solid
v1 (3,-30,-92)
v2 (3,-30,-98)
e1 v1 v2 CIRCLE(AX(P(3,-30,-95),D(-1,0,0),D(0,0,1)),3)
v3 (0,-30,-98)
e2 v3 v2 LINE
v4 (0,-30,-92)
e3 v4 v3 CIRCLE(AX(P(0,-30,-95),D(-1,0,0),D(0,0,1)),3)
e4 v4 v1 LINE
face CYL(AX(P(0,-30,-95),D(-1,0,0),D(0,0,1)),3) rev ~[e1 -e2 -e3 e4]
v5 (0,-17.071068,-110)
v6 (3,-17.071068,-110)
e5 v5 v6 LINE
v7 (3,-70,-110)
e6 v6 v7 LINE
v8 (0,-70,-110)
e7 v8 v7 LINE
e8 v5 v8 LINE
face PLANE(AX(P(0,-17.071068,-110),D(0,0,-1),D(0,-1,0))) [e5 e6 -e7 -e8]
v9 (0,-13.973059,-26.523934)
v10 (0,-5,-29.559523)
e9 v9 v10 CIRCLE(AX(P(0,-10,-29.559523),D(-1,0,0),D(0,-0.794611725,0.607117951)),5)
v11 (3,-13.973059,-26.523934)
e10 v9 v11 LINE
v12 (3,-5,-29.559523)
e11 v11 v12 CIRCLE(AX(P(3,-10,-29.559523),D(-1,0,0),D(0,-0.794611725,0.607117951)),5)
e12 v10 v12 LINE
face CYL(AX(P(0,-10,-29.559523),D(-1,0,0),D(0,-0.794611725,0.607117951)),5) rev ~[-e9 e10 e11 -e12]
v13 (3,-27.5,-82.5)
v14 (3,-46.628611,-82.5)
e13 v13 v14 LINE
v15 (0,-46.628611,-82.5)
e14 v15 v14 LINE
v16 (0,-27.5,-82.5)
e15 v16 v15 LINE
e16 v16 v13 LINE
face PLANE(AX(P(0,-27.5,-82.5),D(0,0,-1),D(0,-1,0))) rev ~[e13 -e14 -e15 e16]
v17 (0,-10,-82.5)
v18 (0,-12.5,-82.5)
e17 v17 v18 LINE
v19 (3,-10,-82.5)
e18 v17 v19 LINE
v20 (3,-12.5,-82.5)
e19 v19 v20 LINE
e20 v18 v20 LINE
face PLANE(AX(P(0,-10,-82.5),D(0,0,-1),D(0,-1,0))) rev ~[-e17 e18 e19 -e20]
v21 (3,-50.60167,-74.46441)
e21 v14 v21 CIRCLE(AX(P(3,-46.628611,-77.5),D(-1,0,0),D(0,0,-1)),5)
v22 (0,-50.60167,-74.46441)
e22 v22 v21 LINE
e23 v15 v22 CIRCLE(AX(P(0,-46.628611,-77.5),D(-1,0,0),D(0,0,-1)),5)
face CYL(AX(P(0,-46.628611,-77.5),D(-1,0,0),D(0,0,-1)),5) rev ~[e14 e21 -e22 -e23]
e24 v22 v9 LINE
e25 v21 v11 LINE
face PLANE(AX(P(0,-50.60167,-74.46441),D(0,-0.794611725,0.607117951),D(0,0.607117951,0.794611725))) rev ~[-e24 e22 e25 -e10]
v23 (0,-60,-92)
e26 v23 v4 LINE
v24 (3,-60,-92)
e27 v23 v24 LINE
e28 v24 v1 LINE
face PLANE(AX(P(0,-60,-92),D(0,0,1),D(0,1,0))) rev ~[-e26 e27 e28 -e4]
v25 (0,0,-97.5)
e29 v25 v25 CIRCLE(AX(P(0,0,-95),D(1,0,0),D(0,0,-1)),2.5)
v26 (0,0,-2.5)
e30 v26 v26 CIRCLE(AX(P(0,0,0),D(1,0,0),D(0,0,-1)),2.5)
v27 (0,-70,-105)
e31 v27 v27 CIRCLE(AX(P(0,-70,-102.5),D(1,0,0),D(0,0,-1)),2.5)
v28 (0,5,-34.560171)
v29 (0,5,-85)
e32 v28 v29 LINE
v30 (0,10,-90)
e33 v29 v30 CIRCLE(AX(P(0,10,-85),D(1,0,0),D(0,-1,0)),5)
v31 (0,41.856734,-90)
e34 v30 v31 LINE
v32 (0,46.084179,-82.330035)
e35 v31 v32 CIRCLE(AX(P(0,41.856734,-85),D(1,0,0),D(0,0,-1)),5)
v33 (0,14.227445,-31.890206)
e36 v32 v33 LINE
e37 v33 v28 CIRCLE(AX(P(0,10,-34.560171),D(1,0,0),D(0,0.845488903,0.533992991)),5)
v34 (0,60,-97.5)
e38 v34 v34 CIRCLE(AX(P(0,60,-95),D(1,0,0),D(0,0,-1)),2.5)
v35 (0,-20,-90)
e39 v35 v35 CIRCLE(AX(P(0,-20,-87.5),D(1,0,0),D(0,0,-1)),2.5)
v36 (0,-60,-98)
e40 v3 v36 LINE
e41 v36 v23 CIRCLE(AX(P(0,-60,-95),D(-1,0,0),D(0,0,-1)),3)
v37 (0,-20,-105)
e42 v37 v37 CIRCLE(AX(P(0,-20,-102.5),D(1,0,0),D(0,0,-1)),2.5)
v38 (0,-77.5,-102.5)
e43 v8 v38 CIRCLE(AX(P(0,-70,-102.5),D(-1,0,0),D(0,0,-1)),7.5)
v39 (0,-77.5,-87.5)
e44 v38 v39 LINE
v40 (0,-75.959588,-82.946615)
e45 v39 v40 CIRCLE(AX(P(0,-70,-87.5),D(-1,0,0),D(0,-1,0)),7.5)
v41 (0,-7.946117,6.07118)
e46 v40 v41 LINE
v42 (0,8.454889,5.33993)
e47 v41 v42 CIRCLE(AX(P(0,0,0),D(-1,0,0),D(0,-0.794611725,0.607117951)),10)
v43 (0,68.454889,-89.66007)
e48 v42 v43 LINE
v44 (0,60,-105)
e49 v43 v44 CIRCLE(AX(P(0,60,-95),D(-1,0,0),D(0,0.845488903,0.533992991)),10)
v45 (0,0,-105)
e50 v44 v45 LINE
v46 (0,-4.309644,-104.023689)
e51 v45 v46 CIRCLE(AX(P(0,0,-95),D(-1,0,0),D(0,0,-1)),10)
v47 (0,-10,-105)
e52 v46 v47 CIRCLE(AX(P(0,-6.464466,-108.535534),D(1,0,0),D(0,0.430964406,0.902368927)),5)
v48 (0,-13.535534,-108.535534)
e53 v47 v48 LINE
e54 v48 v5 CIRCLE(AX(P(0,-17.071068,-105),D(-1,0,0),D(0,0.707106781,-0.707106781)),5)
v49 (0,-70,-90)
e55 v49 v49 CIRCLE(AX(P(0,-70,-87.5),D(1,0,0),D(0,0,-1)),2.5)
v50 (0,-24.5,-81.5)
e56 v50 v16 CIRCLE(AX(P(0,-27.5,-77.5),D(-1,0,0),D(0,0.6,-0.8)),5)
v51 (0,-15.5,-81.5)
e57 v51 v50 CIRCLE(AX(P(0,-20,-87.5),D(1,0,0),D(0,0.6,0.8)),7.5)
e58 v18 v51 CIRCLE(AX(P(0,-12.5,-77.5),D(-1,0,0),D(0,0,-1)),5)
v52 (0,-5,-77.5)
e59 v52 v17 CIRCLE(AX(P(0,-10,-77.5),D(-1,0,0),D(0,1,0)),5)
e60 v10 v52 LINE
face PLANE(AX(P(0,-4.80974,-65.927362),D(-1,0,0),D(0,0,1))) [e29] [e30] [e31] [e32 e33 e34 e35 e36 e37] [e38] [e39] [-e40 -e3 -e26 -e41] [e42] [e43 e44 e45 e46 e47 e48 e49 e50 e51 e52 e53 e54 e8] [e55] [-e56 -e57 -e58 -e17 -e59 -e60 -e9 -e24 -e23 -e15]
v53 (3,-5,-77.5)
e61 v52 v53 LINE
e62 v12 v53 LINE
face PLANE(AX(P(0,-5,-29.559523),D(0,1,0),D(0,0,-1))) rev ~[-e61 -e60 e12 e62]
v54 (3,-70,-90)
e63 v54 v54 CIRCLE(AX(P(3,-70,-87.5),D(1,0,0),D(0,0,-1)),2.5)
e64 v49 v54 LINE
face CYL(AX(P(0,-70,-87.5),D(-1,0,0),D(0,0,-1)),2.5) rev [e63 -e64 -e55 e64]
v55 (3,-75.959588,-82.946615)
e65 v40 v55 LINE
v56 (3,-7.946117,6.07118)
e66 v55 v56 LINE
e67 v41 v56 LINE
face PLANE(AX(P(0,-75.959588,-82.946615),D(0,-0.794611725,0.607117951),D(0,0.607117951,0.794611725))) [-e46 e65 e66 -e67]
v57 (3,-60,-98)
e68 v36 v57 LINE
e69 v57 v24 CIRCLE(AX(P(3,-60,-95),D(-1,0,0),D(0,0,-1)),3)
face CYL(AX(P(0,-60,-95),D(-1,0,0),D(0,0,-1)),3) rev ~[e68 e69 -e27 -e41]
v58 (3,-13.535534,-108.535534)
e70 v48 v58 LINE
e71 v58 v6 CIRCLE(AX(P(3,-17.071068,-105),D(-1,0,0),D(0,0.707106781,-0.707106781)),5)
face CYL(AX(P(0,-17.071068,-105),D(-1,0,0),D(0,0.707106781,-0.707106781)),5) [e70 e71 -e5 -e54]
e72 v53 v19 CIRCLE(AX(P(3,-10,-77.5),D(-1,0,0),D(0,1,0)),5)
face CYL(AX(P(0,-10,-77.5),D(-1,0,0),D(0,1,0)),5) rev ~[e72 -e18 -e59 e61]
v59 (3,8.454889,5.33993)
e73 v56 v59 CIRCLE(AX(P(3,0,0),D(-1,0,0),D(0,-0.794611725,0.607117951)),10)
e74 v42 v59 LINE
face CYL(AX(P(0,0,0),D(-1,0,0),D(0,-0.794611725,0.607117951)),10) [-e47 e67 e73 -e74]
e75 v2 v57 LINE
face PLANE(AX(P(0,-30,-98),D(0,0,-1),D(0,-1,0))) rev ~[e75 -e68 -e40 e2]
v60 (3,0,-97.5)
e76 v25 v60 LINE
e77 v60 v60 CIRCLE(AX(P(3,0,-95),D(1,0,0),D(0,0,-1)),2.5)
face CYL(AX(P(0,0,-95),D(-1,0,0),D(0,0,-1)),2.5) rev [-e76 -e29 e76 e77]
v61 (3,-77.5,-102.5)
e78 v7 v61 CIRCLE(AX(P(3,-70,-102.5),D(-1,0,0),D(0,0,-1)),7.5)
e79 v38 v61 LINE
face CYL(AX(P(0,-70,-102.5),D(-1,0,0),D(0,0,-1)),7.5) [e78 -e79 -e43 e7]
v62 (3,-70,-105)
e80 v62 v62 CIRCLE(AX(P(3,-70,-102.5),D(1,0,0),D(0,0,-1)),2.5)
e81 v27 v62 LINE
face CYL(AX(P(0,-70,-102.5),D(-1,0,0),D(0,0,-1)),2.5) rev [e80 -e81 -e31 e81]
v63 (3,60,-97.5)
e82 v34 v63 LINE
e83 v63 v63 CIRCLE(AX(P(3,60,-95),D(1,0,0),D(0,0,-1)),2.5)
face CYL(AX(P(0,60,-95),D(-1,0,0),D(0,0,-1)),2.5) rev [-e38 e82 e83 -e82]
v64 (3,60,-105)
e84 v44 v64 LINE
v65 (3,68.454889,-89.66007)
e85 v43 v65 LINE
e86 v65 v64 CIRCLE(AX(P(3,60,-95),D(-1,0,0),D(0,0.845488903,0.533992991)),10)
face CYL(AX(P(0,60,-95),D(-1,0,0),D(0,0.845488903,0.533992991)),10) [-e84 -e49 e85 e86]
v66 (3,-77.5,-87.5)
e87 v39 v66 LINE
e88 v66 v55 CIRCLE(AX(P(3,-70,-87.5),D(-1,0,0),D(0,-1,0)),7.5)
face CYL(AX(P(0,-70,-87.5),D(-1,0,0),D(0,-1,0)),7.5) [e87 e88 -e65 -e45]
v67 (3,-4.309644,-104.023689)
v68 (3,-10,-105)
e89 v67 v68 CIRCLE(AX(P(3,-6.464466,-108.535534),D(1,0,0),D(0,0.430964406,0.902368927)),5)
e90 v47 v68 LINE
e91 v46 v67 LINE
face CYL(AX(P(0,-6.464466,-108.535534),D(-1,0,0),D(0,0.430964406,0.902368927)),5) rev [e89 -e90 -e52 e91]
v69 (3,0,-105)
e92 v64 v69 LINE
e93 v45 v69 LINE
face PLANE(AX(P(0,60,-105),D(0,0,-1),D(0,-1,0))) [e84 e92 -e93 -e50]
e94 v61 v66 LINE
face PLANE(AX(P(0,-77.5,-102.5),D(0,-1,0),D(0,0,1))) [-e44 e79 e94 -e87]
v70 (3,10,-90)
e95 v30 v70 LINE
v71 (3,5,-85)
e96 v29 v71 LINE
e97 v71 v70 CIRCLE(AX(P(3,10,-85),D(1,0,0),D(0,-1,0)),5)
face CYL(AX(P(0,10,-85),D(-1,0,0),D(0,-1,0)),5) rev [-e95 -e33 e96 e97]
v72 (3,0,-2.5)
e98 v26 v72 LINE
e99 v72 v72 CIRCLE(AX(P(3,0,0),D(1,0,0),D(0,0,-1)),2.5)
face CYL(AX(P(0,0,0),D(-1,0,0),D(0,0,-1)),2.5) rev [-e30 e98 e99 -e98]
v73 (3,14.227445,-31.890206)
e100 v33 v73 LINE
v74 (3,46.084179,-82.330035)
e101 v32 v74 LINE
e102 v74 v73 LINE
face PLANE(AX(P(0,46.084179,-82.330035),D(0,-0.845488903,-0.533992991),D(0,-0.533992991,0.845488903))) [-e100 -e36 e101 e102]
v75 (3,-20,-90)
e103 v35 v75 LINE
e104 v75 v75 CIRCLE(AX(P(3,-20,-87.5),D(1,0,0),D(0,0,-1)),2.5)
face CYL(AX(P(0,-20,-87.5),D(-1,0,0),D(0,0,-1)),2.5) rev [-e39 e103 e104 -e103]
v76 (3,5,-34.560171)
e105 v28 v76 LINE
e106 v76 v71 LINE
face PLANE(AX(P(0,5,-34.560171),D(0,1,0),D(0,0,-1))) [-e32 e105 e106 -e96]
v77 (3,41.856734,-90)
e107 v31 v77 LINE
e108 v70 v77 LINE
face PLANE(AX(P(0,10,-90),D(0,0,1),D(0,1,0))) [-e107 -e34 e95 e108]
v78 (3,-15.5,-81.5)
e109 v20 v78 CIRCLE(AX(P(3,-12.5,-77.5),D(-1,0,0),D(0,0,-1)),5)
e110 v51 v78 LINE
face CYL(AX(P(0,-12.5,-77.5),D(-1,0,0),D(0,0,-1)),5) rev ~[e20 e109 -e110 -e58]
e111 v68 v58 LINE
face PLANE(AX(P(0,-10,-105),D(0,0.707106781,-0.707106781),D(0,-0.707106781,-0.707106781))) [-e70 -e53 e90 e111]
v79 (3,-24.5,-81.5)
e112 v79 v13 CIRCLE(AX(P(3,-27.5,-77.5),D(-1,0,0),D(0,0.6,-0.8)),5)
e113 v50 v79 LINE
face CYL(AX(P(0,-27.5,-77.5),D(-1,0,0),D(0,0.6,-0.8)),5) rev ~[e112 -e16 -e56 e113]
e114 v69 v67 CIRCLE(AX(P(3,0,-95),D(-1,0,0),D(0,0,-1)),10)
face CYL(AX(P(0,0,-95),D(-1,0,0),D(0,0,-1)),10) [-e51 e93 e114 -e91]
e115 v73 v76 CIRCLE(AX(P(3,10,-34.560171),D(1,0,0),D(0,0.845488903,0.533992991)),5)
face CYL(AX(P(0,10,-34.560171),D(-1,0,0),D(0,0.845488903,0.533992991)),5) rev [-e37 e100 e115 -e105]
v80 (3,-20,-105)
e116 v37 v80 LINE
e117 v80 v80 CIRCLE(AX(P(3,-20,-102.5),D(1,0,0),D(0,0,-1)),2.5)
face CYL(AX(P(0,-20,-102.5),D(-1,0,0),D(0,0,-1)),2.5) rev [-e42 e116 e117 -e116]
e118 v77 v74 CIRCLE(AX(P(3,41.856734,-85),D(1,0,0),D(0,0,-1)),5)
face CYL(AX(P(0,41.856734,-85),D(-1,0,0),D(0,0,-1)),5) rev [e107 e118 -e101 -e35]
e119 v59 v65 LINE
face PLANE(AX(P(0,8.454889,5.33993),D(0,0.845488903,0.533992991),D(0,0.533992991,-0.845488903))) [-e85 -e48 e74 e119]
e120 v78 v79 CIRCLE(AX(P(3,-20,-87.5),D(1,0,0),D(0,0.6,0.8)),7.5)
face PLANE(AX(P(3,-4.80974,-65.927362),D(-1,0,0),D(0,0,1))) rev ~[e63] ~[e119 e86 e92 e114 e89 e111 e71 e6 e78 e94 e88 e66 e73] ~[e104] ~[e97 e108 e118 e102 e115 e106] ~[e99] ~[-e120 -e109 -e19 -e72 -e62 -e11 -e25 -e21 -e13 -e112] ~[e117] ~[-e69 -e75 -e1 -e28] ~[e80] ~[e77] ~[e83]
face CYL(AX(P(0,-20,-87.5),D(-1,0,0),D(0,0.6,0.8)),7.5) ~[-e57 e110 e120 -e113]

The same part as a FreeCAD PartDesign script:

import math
import FreeCAD as App
import Part
import Sketcher

V = App.Vector
Q = App.Units.Quantity

doc = App.newDocument("Part")
body = doc.addObject("PartDesign::Body", "Body")

# Sketch on YZ plane
sketch1 = doc.addObject("Sketcher::SketchObject", "Sketch")
body.addObject(sketch1)
sketch1.AttachmentSupport = (doc.YZ_Plane, [""])
sketch1.MapMode = "FlatFace"
sketch1.addGeometry(Part.LineSegment(V(68.454889, -89.66007, 0), V(8.454889, 5.33993, 0)), False)
sketch1.addGeometry(Part.ArcOfCircle(Part.Circle(V(0, 0, 0), V(0, 0, 1), 10), math.radians(32.275644), math.radians(142.618597)), False)
sketch1.addGeometry(Part.LineSegment(V(-7.946117, 6.07118, 0), V(-75.959588, -82.946615, 0)), False)
sketch1.addGeometry(Part.ArcOfCircle(Part.Circle(V(-70, -87.5, 0), V(0, 0, 1), 7.5), math.radians(142.618597), math.radians(180)), False)
sketch1.addGeometry(Part.LineSegment(V(-77.5, -87.5, 0), V(-77.5, -102.5, 0)), False)
sketch1.addGeometry(Part.ArcOfCircle(Part.Circle(V(-70, -102.5, 0), V(0, 0, 1), 7.5), math.radians(180), math.radians(270)), False)
sketch1.addGeometry(Part.LineSegment(V(-70, -110, 0), V(-17.071068, -110, 0)), False)
sketch1.addGeometry(Part.ArcOfCircle(Part.Circle(V(-17.071068, -105, 0), V(0, 0, 1), 5), math.radians(-90), math.radians(-45)), False)
sketch1.addGeometry(Part.LineSegment(V(-13.535534, -108.535534, 0), V(-10, -105, 0)), False)
sketch1.addGeometry(Part.ArcOfCircle(Part.Circle(V(-6.464466, -108.535534, 0), V(0, 0, 1), 5), math.radians(64.471221), math.radians(135)), False)
sketch1.addGeometry(Part.ArcOfCircle(Part.Circle(V(0, -95, 0), V(0, 0, 1), 10), math.radians(-115.528779), math.radians(-90)), False)
sketch1.addGeometry(Part.LineSegment(V(0, -105, 0), V(60, -105, 0)), False)
sketch1.addGeometry(Part.ArcOfCircle(Part.Circle(V(60, -95, 0), V(0, 0, 1), 10), math.radians(-90), math.radians(32.275644)), False)
sketch1.addGeometry(Part.Circle(V(-70, -102.5, 0), V(0, 0, 1), 2.5), False)
sketch1.addGeometry(Part.Circle(V(-70, -87.5, 0), V(0, 0, 1), 2.5), False)
sketch1.addGeometry(Part.LineSegment(V(-30, -98, 0), V(-60, -98, 0)), False)
sketch1.addGeometry(Part.ArcOfCircle(Part.Circle(V(-60, -95, 0), V(0, 0, 1), 3), math.radians(90), math.radians(270)), False)
sketch1.addGeometry(Part.LineSegment(V(-60, -92, 0), V(-30, -92, 0)), False)
sketch1.addGeometry(Part.ArcOfCircle(Part.Circle(V(-30, -95, 0), V(0, 0, 1), 3), math.radians(-90), math.radians(90)), False)
sketch1.addGeometry(Part.Circle(V(-20, -102.5, 0), V(0, 0, 1), 2.5), False)
sketch1.addGeometry(Part.Circle(V(-20, -87.5, 0), V(0, 0, 1), 2.5), False)
sketch1.addGeometry(Part.LineSegment(V(-5, -29.559523, 0), V(-5, -77.5, 0)), False)
sketch1.addGeometry(Part.ArcOfCircle(Part.Circle(V(-10, -77.5, 0), V(0, 0, 1), 5), math.radians(-90), math.radians(0)), False)
sketch1.addGeometry(Part.LineSegment(V(-10, -82.5, 0), V(-12.5, -82.5, 0)), False)
sketch1.addGeometry(Part.ArcOfCircle(Part.Circle(V(-12.5, -77.5, 0), V(0, 0, 1), 5), math.radians(-126.869898), math.radians(-90)), False)
sketch1.addGeometry(Part.ArcOfCircle(Part.Circle(V(-20, -87.5, 0), V(0, 0, 1), 7.5), math.radians(53.130102), math.radians(126.869898)), False)
sketch1.addGeometry(Part.ArcOfCircle(Part.Circle(V(-27.5, -77.5, 0), V(0, 0, 1), 5), math.radians(-90), math.radians(-53.130102)), False)
sketch1.addGeometry(Part.LineSegment(V(-27.5, -82.5, 0), V(-46.628611, -82.5, 0)), False)
sketch1.addGeometry(Part.ArcOfCircle(Part.Circle(V(-46.628611, -77.5, 0), V(0, 0, 1), 5), math.radians(142.618597), math.radians(270)), False)
sketch1.addGeometry(Part.LineSegment(V(-50.60167, -74.46441, 0), V(-13.973059, -26.523934, 0)), False)
sketch1.addGeometry(Part.ArcOfCircle(Part.Circle(V(-10, -29.559523, 0), V(0, 0, 1), 5), math.radians(0), math.radians(142.618597)), False)
sketch1.addGeometry(Part.Circle(V(0, -95, 0), V(0, 0, 1), 2.5), False)
sketch1.addGeometry(Part.ArcOfCircle(Part.Circle(V(41.856734, -85, 0), V(0, 0, 1), 5), math.radians(-90), math.radians(32.275644)), False)
sketch1.addGeometry(Part.LineSegment(V(41.856734, -90, 0), V(10, -90, 0)), False)
sketch1.addGeometry(Part.ArcOfCircle(Part.Circle(V(10, -85, 0), V(0, 0, 1), 5), math.radians(180), math.radians(270)), False)
sketch1.addGeometry(Part.LineSegment(V(5, -85, 0), V(5, -34.560171, 0)), False)
sketch1.addGeometry(Part.ArcOfCircle(Part.Circle(V(10, -34.560171, 0), V(0, 0, 1), 5), math.radians(32.275644), math.radians(180)), False)
sketch1.addGeometry(Part.LineSegment(V(14.227445, -31.890206, 0), V(46.084179, -82.330035, 0)), False)
sketch1.addGeometry(Part.Circle(V(60, -95, 0), V(0, 0, 1), 2.5), False)
sketch1.addGeometry(Part.Circle(V(0, 0, 0), V(0, 0, 1), 2.5), False)
sketch1.addConstraint(Sketcher.Constraint("Tangent", 0, 2, 1, 1))
sketch1.addConstraint(Sketcher.Constraint("Tangent", 1, 2, 2, 1))
sketch1.addConstraint(Sketcher.Constraint("Tangent", 2, 2, 3, 1))
sketch1.addConstraint(Sketcher.Constraint("Tangent", 3, 2, 4, 1))
sketch1.addConstraint(Sketcher.Constraint("Tangent", 4, 2, 5, 1))
sketch1.addConstraint(Sketcher.Constraint("Tangent", 5, 2, 6, 1))
sketch1.addConstraint(Sketcher.Constraint("Tangent", 6, 2, 7, 1))
sketch1.addConstraint(Sketcher.Constraint("Tangent", 7, 2, 8, 1))
sketch1.addConstraint(Sketcher.Constraint("Tangent", 8, 2, 9, 2))
sketch1.addConstraint(Sketcher.Constraint("Tangent", 9, 1, 10, 1))
sketch1.addConstraint(Sketcher.Constraint("Tangent", 10, 2, 11, 1))
sketch1.addConstraint(Sketcher.Constraint("Tangent", 11, 2, 12, 1))
sketch1.addConstraint(Sketcher.Constraint("Tangent", 12, 2, 0, 1))
sketch1.addConstraint(Sketcher.Constraint("Tangent", 15, 2, 16, 2))
sketch1.addConstraint(Sketcher.Constraint("Tangent", 16, 1, 17, 1))
sketch1.addConstraint(Sketcher.Constraint("Tangent", 17, 2, 18, 2))
sketch1.addConstraint(Sketcher.Constraint("Tangent", 18, 1, 15, 1))
sketch1.addConstraint(Sketcher.Constraint("Tangent", 21, 2, 22, 2))
sketch1.addConstraint(Sketcher.Constraint("Tangent", 22, 1, 23, 1))
sketch1.addConstraint(Sketcher.Constraint("Tangent", 23, 2, 24, 2))
sketch1.addConstraint(Sketcher.Constraint("Tangent", 24, 1, 25, 1))
sketch1.addConstraint(Sketcher.Constraint("Tangent", 25, 2, 26, 2))
sketch1.addConstraint(Sketcher.Constraint("Tangent", 26, 1, 27, 1))
sketch1.addConstraint(Sketcher.Constraint("Tangent", 27, 2, 28, 2))
sketch1.addConstraint(Sketcher.Constraint("Tangent", 28, 1, 29, 1))
sketch1.addConstraint(Sketcher.Constraint("Tangent", 29, 2, 30, 2))
sketch1.addConstraint(Sketcher.Constraint("Tangent", 30, 1, 21, 1))
sketch1.addConstraint(Sketcher.Constraint("Tangent", 32, 1, 33, 1))
sketch1.addConstraint(Sketcher.Constraint("Tangent", 33, 2, 34, 2))
sketch1.addConstraint(Sketcher.Constraint("Tangent", 34, 1, 35, 1))
sketch1.addConstraint(Sketcher.Constraint("Tangent", 35, 2, 36, 2))
sketch1.addConstraint(Sketcher.Constraint("Tangent", 36, 1, 37, 1))
sketch1.addConstraint(Sketcher.Constraint("Tangent", 37, 2, 32, 2))
sketch1.addConstraint(Sketcher.Constraint("Vertical", 4))
sketch1.addConstraint(Sketcher.Constraint("Horizontal", 6))
sketch1.addConstraint(Sketcher.Constraint("Horizontal", 11))
sketch1.addConstraint(Sketcher.Constraint("Horizontal", 15))
sketch1.addConstraint(Sketcher.Constraint("Horizontal", 17))
sketch1.addConstraint(Sketcher.Constraint("Vertical", 21))
sketch1.addConstraint(Sketcher.Constraint("Horizontal", 23))
sketch1.addConstraint(Sketcher.Constraint("Horizontal", 27))
sketch1.addConstraint(Sketcher.Constraint("Horizontal", 33))
sketch1.addConstraint(Sketcher.Constraint("Vertical", 35))
sketch1.addConstraint(Sketcher.Constraint("Coincident", 1, 3, -1, 1))
sketch1.addConstraint(Sketcher.Constraint("Coincident", 39, 3, -1, 1))
sketch1.addConstraint(Sketcher.Constraint("Coincident", 13, 3, 5, 3))
sketch1.addConstraint(Sketcher.Constraint("Coincident", 14, 3, 3, 3))
sketch1.addConstraint(Sketcher.Constraint("Coincident", 25, 3, 20, 3))
sketch1.addConstraint(Sketcher.Constraint("Coincident", 31, 3, 10, 3))
sketch1.addConstraint(Sketcher.Constraint("Coincident", 38, 3, 12, 3))
sketch1.addConstraint(Sketcher.Constraint("Equal", 3, 5))
sketch1.addConstraint(Sketcher.Constraint("Equal", 7, 9))
sketch1.addConstraint(Sketcher.Constraint("Equal", 1, 10))
sketch1.addConstraint(Sketcher.Constraint("Equal", 10, 12))
sketch1.addConstraint(Sketcher.Constraint("Equal", 13, 14))
sketch1.addConstraint(Sketcher.Constraint("Equal", 14, 19))
sketch1.addConstraint(Sketcher.Constraint("Equal", 19, 20))
sketch1.addConstraint(Sketcher.Constraint("Equal", 9, 22))
sketch1.addConstraint(Sketcher.Constraint("Equal", 22, 24))
sketch1.addConstraint(Sketcher.Constraint("Equal", 5, 25))
sketch1.addConstraint(Sketcher.Constraint("Equal", 24, 26))
sketch1.addConstraint(Sketcher.Constraint("Equal", 26, 28))
sketch1.addConstraint(Sketcher.Constraint("Equal", 28, 30))
sketch1.addConstraint(Sketcher.Constraint("Equal", 20, 31))
sketch1.addConstraint(Sketcher.Constraint("Equal", 30, 32))
sketch1.addConstraint(Sketcher.Constraint("Equal", 32, 34))
sketch1.addConstraint(Sketcher.Constraint("Equal", 34, 36))
sketch1.addConstraint(Sketcher.Constraint("Equal", 31, 38))
sketch1.addConstraint(Sketcher.Constraint("Equal", 38, 39))
sketch1.addConstraint(Sketcher.Constraint("Symmetric", 12, 3, 16, 3, -2))
sketch1.addConstraint(Sketcher.Constraint("PointOnObject", 10, 3, -2))
sketch1.addConstraint(Sketcher.Constraint("Parallel", 2, 29))
sketch1.addConstraint(Sketcher.Constraint("Parallel", 0, 37))
sketch1.addConstraint(Sketcher.Constraint("Horizontal", 13, 3, 19, 3))
sketch1.addConstraint(Sketcher.Constraint("Horizontal", 14, 3, 20, 3))
sketch1.addConstraint(Sketcher.Constraint("Horizontal", 24, 3, 26, 3))
sketch1.addConstraint(Sketcher.Constraint("Horizontal", 9, 3, 7, 2))
sketch1.addConstraint(Sketcher.Constraint("Horizontal", 8, 2, 10, 2))
sketch1.addConstraint(Sketcher.Constraint("Vertical", 19, 3, 20, 3))
sketch1.addConstraint(Sketcher.Constraint("Vertical", 30, 3, 8, 2))
sketch1.addConstraint(Sketcher.Constraint("Diameter", 13, 5.0))
sketch1.addConstraint(Sketcher.Constraint("Radius", 1, 10.0))
sketch1.addConstraint(Sketcher.Constraint("Radius", 7, 5.0))
sketch1.addConstraint(Sketcher.Constraint("Radius", 16, 3.0))
sketch1.addConstraint(Sketcher.Constraint("Radius", 3, 7.5))
sketch1.addConstraint(Sketcher.Constraint("DistanceX", 11, 1, 11, 2, 60.0))
sketch1.addConstraint(Sketcher.Constraint("DistanceX", 15, 2, 15, 1, 30.0))
sketch1.addConstraint(Sketcher.Constraint("DistanceY", 4, 2, 4, 1, 15.0))
sketch1.addConstraint(Sketcher.Constraint("Angle", 8, Q("45 deg")))
sketch1.addConstraint(Sketcher.Constraint("DistanceX", 23, 2, 23, 1, 2.5))
sketch1.addConstraint(Sketcher.Constraint("DistanceX", 3, 3, -1, 1, 70.0))
sketch1.addConstraint(Sketcher.Constraint("DistanceY", 7, 3, -1, 1, 105.0))
sketch1.addConstraint(Sketcher.Constraint("DistanceX", 19, 3, -1, 1, 20.0))
sketch1.addConstraint(Sketcher.Constraint("DistanceY", 32, 3, -1, 1, 85.0))
sketch1.addConstraint(Sketcher.Constraint("DistanceX", -1, 1, 34, 3, 10.0))
sketch1.addConstraint(Sketcher.Constraint("DistanceX", 27, 2, 27, 1, 19.128611))
sketch1.addConstraint(Sketcher.Constraint("DistanceY", 35, 1, 35, 2, 50.439829))
pad1 = doc.addObject("PartDesign::Pad", "Pad")
body.addObject(pad1)
pad1.Profile = sketch1
pad1.Length = 3

doc.recompute()
